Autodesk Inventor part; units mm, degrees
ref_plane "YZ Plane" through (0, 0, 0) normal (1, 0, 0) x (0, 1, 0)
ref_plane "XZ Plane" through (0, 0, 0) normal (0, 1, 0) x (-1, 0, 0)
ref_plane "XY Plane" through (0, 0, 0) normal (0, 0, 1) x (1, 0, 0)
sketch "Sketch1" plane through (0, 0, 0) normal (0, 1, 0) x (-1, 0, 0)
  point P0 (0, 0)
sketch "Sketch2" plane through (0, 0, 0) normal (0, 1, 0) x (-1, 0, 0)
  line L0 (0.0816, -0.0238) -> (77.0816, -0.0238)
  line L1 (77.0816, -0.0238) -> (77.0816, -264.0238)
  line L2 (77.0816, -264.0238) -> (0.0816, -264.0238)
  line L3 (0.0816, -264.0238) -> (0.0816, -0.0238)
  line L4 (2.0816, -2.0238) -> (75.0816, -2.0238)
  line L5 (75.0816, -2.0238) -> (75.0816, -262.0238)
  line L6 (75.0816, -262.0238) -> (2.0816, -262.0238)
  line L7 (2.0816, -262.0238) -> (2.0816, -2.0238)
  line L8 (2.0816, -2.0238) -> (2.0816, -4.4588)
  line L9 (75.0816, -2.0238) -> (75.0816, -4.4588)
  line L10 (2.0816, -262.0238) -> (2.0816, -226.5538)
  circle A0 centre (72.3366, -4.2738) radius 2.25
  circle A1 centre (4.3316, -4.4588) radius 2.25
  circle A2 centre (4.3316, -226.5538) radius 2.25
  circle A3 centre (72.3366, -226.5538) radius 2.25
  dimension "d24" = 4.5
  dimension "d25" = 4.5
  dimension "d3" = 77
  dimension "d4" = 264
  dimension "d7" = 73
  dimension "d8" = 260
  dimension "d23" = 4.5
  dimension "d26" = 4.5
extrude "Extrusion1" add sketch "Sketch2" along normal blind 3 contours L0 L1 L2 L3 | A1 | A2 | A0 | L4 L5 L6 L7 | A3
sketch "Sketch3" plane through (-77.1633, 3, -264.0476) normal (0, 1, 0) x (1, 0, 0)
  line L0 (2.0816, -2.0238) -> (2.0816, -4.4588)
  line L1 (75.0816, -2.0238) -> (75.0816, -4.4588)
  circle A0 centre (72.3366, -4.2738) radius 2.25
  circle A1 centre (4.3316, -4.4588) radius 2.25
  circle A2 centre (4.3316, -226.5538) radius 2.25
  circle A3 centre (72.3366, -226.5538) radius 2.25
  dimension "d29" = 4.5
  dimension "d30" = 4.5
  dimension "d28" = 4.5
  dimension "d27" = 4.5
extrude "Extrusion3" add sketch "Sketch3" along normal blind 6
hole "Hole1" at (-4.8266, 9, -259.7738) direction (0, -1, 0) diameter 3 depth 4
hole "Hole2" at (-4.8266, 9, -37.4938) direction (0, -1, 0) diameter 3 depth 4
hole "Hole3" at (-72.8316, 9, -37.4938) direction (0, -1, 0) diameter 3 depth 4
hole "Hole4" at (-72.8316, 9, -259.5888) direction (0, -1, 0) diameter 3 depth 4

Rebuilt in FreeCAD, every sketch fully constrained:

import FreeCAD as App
import Part
import Sketcher
from FreeCAD import Vector
Q = App.Units.Quantity

doc = App.newDocument("Part")
body = doc.addObject("PartDesign::Body", "Body")

sketch1 = body.newObject("Sketcher::SketchObject", "Sketch")
sketch1.AttachmentSupport = (doc.getObject("XZ_Plane"), [""])
sketch1.MapMode = "FlatFace"
sketch1.addGeometry([
    Part.LineSegment(Vector(-77, 0, 0), Vector(0, 0, 0)),
    Part.LineSegment(Vector(0, 0, 0), Vector(0, -264, 0)),
    Part.LineSegment(Vector(0, -264, 0), Vector(-77, -264, 0)),
    Part.LineSegment(Vector(-77, -264, 0), Vector(-77, 0, 0)),
], False)
sketch1.addConstraint([
    Sketcher.Constraint("Coincident", 0, 2, 1, 1),
    Sketcher.Constraint("Coincident", 1, 2, 2, 1),
    Sketcher.Constraint("Coincident", 2, 2, 3, 1),
    Sketcher.Constraint("Coincident", 3, 2, 0, 1),
    Sketcher.Constraint("Horizontal", 0),
    Sketcher.Constraint("Vertical", 1),
    Sketcher.Constraint("Horizontal", 2),
    Sketcher.Constraint("Vertical", 3),
    Sketcher.Constraint("DistanceX", 0, 1, 0, 2, Q("77 mm")),
    Sketcher.Constraint("DistanceY", 1, 2, 1, 1, Q("264 mm")),
    Sketcher.Constraint("DistanceX", 0, 2, -1, 1, Q("0.0816 mm")),
    Sketcher.Constraint("DistanceY", 0, 2, -1, 1, Q("0.0238 mm")),
])
pad1 = body.newObject("PartDesign::Pad", "Pad")
pad1.Profile = sketch1
pad1.Length = 3
pad1.Reversed = True

sketch2 = body.newObject("Sketcher::SketchObject", "Sketch001")
sketch2.AttachmentSupport = (doc.getObject("XZ_Plane"), [""])
sketch2.MapMode = "FlatFace"
sketch2.AttachmentOffset = App.Placement(Vector(0, 0, -3), App.Rotation())
sketch2.addGeometry([
    Part.Circle(Vector(-4.8, -259.8, 0), Vector(0, 0, 1), 2.2),
    Part.Circle(Vector(-72.8, -259.6, 0), Vector(0, 0, 1), 2.2),
    Part.Circle(Vector(-72.8, -37.5, 0), Vector(0, 0, 1), 2.2),
    Part.Circle(Vector(-4.8, -37.5, 0), Vector(0, 0, 1), 2.2),
], False)
sketch2.addConstraint([
    Sketcher.Constraint("Equal", 0, 1),
    Sketcher.Constraint("Equal", 1, 2),
    Sketcher.Constraint("Equal", 2, 3),
    Sketcher.Constraint("Horizontal", 2, 3, 3, 3),
    Sketcher.Constraint("Vertical", 1, 3, 2, 3),
    Sketcher.Constraint("Vertical", 0, 3, 3, 3),
    Sketcher.Constraint("Diameter", 0, Q("4.5 mm")),
    Sketcher.Constraint("DistanceY", 0, 3, 2, 3, Q("222.28 mm")),
    Sketcher.Constraint("DistanceX", 1, 3, 0, 3, Q("68.005 mm")),
    Sketcher.Constraint("DistanceY", 0, 3, 1, 3, Q("0.185 mm")),
    Sketcher.Constraint("DistanceX", 0, 3, -1, 1, Q("4.8267 mm")),
    Sketcher.Constraint("DistanceY", 0, 3, -1, 1, Q("259.7738 mm")),
])
pad2 = body.newObject("PartDesign::Pad", "Pad001")
pad2.Profile = sketch2
pad2.Length = 6
pad2.Reversed = True

sketch3 = body.newObject("Sketcher::SketchObject", "Sketch002")
sketch3.AttachmentSupport = (doc.getObject("XZ_Plane"), [""])
sketch3.MapMode = "FlatFace"
sketch3.AttachmentOffset = App.Placement(Vector(0, 0, -9), App.Rotation())
sketch3.addGeometry(Part.Circle(Vector(-4.8, -259.8, 0), Vector(0, 0, 1), 1.5), False)
sketch3.addConstraint([
    Sketcher.Constraint("Diameter", 0, Q("3 mm")),
    Sketcher.Constraint("DistanceX", 0, 3, -1, 1, Q("4.8266 mm")),
    Sketcher.Constraint("DistanceY", 0, 3, -1, 1, Q("259.7738 mm")),
])
doc.recompute()
hole = body.newObject("PartDesign::Hole", "Hole")
hole.Profile = sketch3
hole.ThreadType = "None"
hole.Diameter = 3
hole.DepthType = "Dimension"
hole.Depth = 4
hole.DrillPoint = "Flat"
hole.Reversed = True

sketch4 = body.newObject("Sketcher::SketchObject", "Sketch003")
sketch4.AttachmentSupport = (doc.getObject("XZ_Plane"), [""])
sketch4.MapMode = "FlatFace"
sketch4.AttachmentOffset = App.Placement(Vector(0, 0, -9), App.Rotation())
sketch4.addGeometry(Part.Circle(Vector(-4.8, -37.5, 0), Vector(0, 0, 1), 1.5), False)
sketch4.addConstraint([
    Sketcher.Constraint("Diameter", 0, Q("3 mm")),
    Sketcher.Constraint("DistanceX", 0, 3, -1, 1, Q("4.8266 mm")),
    Sketcher.Constraint("DistanceY", 0, 3, -1, 1, Q("37.4938 mm")),
])
doc.recompute()
hole2 = body.newObject("PartDesign::Hole", "Hole001")
hole2.Profile = sketch4
hole2.ThreadType = "None"
hole2.Diameter = 3
hole2.DepthType = "Dimension"
hole2.Depth = 4
hole2.DrillPoint = "Flat"
hole2.Reversed = True

sketch5 = body.newObject("Sketcher::SketchObject", "Sketch004")
sketch5.AttachmentSupport = (doc.getObject("XZ_Plane"), [""])
sketch5.MapMode = "FlatFace"
sketch5.AttachmentOffset = App.Placement(Vector(0, 0, -9), App.Rotation())
sketch5.addGeometry(Part.Circle(Vector(-72.8, -37.5, 0), Vector(0, 0, 1), 1.5), False)
sketch5.addConstraint([
    Sketcher.Constraint("Diameter", 0, Q("3 mm")),
    Sketcher.Constraint("DistanceX", 0, 3, -1, 1, Q("72.8316 mm")),
    Sketcher.Constraint("DistanceY", 0, 3, -1, 1, Q("37.4938 mm")),
])
doc.recompute()
hole3 = body.newObject("PartDesign::Hole", "Hole002")
hole3.Profile = sketch5
hole3.ThreadType = "None"
hole3.Diameter = 3
hole3.DepthType = "Dimension"
hole3.Depth = 4
hole3.DrillPoint = "Flat"
hole3.Reversed = True

sketch6 = body.newObject("Sketcher::SketchObject", "Sketch005")
sketch6.AttachmentSupport = (doc.getObject("XZ_Plane"), [""])
sketch6.MapMode = "FlatFace"
sketch6.AttachmentOffset = App.Placement(Vector(0, 0, -9), App.Rotation())
sketch6.addGeometry(Part.Circle(Vector(-72.8, -259.6, 0), Vector(0, 0, 1), 1.5), False)
sketch6.addConstraint([
    Sketcher.Constraint("Diameter", 0, Q("3 mm")),
    Sketcher.Constraint("DistanceX", 0, 3, -1, 1, Q("72.8316 mm")),
    Sketcher.Constraint("DistanceY", 0, 3, -1, 1, Q("259.5888 mm")),
])
doc.recompute()
hole4 = body.newObject("PartDesign::Hole", "Hole003")
hole4.Profile = sketch6
hole4.ThreadType = "None"
hole4.Diameter = 3
hole4.DepthType = "Dimension"
hole4.Depth = 4
hole4.DrillPoint = "Flat"
hole4.Reversed = True

doc.recompute()
